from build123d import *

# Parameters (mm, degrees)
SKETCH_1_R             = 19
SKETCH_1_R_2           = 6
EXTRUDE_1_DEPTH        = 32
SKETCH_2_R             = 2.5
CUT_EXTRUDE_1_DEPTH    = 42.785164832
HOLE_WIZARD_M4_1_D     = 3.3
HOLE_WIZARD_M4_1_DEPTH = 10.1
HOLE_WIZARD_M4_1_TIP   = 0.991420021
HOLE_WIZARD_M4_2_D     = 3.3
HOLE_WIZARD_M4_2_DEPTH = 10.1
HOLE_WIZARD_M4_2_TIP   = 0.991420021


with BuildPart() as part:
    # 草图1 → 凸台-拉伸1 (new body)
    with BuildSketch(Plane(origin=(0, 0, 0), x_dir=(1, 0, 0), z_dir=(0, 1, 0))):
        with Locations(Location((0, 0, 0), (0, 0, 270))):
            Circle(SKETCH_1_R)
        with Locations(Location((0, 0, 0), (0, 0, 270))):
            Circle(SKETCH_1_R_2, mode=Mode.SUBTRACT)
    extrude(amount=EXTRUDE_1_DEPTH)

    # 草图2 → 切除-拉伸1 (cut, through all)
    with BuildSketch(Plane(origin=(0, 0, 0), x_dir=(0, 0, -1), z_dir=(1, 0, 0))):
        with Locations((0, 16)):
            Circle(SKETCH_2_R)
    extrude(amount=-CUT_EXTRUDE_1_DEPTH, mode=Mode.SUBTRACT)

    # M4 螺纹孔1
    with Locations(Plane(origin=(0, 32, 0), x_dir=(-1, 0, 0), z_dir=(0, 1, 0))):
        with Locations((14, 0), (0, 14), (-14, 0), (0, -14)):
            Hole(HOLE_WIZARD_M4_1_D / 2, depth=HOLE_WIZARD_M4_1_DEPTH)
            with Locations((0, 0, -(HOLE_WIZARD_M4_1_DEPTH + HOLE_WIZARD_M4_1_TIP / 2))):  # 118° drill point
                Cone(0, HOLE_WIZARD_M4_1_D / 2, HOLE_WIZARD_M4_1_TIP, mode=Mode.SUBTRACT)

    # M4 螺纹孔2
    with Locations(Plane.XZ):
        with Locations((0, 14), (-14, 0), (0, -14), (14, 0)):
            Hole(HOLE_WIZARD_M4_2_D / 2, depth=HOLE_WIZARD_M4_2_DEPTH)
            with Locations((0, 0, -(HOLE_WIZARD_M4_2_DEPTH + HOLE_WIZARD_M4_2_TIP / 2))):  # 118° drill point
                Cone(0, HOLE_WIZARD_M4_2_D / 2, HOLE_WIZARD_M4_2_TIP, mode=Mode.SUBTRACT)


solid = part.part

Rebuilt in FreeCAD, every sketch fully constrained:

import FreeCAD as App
import Part
import Sketcher

doc = App.newDocument("Part")
body = doc.addObject("PartDesign::Body", "Body")

# Sketch on XZ plane
sketch1 = doc.addObject("Sketcher::SketchObject", "Sketch")
body.addObject(sketch1)
sketch1.AttachmentSupport = (doc.XZ_Plane, [""])
sketch1.MapMode = "FlatFace"
sketch1.addGeometry([
    Part.Circle(App.Vector(0, 0, 0), App.Vector(0, 0, 1), 19),
    Part.Circle(App.Vector(0, 0, 0), App.Vector(0, 0, 1), 6),
], False)
sketch1.addConstraint([
    Sketcher.Constraint("Coincident", 0, 3, -1, 1),
    Sketcher.Constraint("Coincident", 1, 3, -1, 1),
    Sketcher.Constraint("Diameter", 0, 38.0),
    Sketcher.Constraint("Diameter", 1, 12.0),
])
pad1 = doc.addObject("PartDesign::Pad", "Pad")
body.addObject(pad1)
pad1.Profile = sketch1
pad1.Length = 32
pad1.Reversed = True

# Sketch on YZ plane
sketch2 = doc.addObject("Sketcher::SketchObject", "Sketch001")
body.addObject(sketch2)
sketch2.AttachmentSupport = (doc.YZ_Plane, [""])
sketch2.MapMode = "FlatFace"
sketch2.addGeometry(Part.Circle(App.Vector(16, 0, 0), App.Vector(0, 0, 1), 2.5), False)
sketch2.addConstraint([
    Sketcher.Constraint("PointOnObject", 0, 3, -1),
    Sketcher.Constraint("Diameter", 0, 5.0),
    Sketcher.Constraint("DistanceX", -1, 1, 0, 3, 16.0),
])
pocket1 = doc.addObject("PartDesign::Pocket", "Pocket")
body.addObject(pocket1)
pocket1.Profile = sketch2
pocket1.Type = "ThroughAll"

# Sketch on XZ plane
sketch3 = doc.addObject("Sketcher::SketchObject", "Sketch002")
body.addObject(sketch3)
sketch3.AttachmentSupport = (doc.XZ_Plane, [""])
sketch3.MapMode = "FlatFace"
sketch3.AttachmentOffset = App.Placement(App.Vector(0, 0, -32), App.Rotation())
sketch3.addGeometry([
    Part.Circle(App.Vector(-14, 0, 0), App.Vector(0, 0, 1), 1.65),
    Part.Circle(App.Vector(0, 14, 0), App.Vector(0, 0, 1), 1.65),
    Part.Circle(App.Vector(14, 0, 0), App.Vector(0, 0, 1), 1.65),
    Part.Circle(App.Vector(0, -14, 0), App.Vector(0, 0, 1), 1.65),
], False)
sketch3.addConstraint([
    Sketcher.Constraint("Equal", 0, 1),
    Sketcher.Constraint("Equal", 1, 2),
    Sketcher.Constraint("Equal", 2, 3),
    Sketcher.Constraint("Symmetric", 0, 3, 2, 3, -1, 1),
    Sketcher.Constraint("Symmetric", 1, 3, 3, 3, -1, 1),
    Sketcher.Constraint("PointOnObject", 0, 3, -1),
    Sketcher.Constraint("PointOnObject", 1, 3, -2),
    Sketcher.Constraint("Diameter", 0, 3.3),
    Sketcher.Constraint("DistanceX", 0, 3, -1, 1, 14.0),
    Sketcher.Constraint("DistanceY", -1, 1, 1, 3, 14.0),
])
doc.recompute()
hole = doc.addObject("PartDesign::Hole", "Hole")
body.addObject(hole)
hole.Profile = sketch3
hole.ThreadType = "None"
hole.Diameter = 3.3
hole.DepthType = "Dimension"
hole.Depth = 10.1
hole.DrillPoint = "Angled"
hole.DrillPointAngle = 118
hole.Reversed = True

# Sketch on XZ plane
sketch4 = doc.addObject("Sketcher::SketchObject", "Sketch003")
body.addObject(sketch4)
sketch4.AttachmentSupport = (doc.XZ_Plane, [""])
sketch4.MapMode = "FlatFace"
sketch4.addGeometry([
    Part.Circle(App.Vector(0, 14, 0), App.Vector(0, 0, 1), 1.65),
    Part.Circle(App.Vector(-14, 0, 0), App.Vector(0, 0, 1), 1.65),
    Part.Circle(App.Vector(0, -14, 0), App.Vector(0, 0, 1), 1.65),
    Part.Circle(App.Vector(14, 0, 0), App.Vector(0, 0, 1), 1.65),
], False)
sketch4.addConstraint([
    Sketcher.Constraint("Equal", 0, 1),
    Sketcher.Constraint("Equal", 1, 2),
    Sketcher.Constraint("Equal", 2, 3),
    Sketcher.Constraint("Symmetric", 0, 3, 2, 3, -1, 1),
    Sketcher.Constraint("Symmetric", 1, 3, 3, 3, -1, 1),
    Sketcher.Constraint("PointOnObject", 0, 3, -2),
    Sketcher.Constraint("PointOnObject", 1, 3, -1),
    Sketcher.Constraint("Diameter", 0, 3.3),
    Sketcher.Constraint("DistanceY", -1, 1, 0, 3, 14.0),
    Sketcher.Constraint("DistanceX", 1, 3, -1, 1, 14.0),
])
doc.recompute()
hole2 = doc.addObject("PartDesign::Hole", "Hole001")
body.addObject(hole2)
hole2.Profile = sketch4
hole2.ThreadType = "None"
hole2.Diameter = 3.3
hole2.DepthType = "Dimension"
hole2.Depth = 10.1
hole2.DrillPoint = "Angled"
hole2.DrillPointAngle = 118

doc.recompute()
